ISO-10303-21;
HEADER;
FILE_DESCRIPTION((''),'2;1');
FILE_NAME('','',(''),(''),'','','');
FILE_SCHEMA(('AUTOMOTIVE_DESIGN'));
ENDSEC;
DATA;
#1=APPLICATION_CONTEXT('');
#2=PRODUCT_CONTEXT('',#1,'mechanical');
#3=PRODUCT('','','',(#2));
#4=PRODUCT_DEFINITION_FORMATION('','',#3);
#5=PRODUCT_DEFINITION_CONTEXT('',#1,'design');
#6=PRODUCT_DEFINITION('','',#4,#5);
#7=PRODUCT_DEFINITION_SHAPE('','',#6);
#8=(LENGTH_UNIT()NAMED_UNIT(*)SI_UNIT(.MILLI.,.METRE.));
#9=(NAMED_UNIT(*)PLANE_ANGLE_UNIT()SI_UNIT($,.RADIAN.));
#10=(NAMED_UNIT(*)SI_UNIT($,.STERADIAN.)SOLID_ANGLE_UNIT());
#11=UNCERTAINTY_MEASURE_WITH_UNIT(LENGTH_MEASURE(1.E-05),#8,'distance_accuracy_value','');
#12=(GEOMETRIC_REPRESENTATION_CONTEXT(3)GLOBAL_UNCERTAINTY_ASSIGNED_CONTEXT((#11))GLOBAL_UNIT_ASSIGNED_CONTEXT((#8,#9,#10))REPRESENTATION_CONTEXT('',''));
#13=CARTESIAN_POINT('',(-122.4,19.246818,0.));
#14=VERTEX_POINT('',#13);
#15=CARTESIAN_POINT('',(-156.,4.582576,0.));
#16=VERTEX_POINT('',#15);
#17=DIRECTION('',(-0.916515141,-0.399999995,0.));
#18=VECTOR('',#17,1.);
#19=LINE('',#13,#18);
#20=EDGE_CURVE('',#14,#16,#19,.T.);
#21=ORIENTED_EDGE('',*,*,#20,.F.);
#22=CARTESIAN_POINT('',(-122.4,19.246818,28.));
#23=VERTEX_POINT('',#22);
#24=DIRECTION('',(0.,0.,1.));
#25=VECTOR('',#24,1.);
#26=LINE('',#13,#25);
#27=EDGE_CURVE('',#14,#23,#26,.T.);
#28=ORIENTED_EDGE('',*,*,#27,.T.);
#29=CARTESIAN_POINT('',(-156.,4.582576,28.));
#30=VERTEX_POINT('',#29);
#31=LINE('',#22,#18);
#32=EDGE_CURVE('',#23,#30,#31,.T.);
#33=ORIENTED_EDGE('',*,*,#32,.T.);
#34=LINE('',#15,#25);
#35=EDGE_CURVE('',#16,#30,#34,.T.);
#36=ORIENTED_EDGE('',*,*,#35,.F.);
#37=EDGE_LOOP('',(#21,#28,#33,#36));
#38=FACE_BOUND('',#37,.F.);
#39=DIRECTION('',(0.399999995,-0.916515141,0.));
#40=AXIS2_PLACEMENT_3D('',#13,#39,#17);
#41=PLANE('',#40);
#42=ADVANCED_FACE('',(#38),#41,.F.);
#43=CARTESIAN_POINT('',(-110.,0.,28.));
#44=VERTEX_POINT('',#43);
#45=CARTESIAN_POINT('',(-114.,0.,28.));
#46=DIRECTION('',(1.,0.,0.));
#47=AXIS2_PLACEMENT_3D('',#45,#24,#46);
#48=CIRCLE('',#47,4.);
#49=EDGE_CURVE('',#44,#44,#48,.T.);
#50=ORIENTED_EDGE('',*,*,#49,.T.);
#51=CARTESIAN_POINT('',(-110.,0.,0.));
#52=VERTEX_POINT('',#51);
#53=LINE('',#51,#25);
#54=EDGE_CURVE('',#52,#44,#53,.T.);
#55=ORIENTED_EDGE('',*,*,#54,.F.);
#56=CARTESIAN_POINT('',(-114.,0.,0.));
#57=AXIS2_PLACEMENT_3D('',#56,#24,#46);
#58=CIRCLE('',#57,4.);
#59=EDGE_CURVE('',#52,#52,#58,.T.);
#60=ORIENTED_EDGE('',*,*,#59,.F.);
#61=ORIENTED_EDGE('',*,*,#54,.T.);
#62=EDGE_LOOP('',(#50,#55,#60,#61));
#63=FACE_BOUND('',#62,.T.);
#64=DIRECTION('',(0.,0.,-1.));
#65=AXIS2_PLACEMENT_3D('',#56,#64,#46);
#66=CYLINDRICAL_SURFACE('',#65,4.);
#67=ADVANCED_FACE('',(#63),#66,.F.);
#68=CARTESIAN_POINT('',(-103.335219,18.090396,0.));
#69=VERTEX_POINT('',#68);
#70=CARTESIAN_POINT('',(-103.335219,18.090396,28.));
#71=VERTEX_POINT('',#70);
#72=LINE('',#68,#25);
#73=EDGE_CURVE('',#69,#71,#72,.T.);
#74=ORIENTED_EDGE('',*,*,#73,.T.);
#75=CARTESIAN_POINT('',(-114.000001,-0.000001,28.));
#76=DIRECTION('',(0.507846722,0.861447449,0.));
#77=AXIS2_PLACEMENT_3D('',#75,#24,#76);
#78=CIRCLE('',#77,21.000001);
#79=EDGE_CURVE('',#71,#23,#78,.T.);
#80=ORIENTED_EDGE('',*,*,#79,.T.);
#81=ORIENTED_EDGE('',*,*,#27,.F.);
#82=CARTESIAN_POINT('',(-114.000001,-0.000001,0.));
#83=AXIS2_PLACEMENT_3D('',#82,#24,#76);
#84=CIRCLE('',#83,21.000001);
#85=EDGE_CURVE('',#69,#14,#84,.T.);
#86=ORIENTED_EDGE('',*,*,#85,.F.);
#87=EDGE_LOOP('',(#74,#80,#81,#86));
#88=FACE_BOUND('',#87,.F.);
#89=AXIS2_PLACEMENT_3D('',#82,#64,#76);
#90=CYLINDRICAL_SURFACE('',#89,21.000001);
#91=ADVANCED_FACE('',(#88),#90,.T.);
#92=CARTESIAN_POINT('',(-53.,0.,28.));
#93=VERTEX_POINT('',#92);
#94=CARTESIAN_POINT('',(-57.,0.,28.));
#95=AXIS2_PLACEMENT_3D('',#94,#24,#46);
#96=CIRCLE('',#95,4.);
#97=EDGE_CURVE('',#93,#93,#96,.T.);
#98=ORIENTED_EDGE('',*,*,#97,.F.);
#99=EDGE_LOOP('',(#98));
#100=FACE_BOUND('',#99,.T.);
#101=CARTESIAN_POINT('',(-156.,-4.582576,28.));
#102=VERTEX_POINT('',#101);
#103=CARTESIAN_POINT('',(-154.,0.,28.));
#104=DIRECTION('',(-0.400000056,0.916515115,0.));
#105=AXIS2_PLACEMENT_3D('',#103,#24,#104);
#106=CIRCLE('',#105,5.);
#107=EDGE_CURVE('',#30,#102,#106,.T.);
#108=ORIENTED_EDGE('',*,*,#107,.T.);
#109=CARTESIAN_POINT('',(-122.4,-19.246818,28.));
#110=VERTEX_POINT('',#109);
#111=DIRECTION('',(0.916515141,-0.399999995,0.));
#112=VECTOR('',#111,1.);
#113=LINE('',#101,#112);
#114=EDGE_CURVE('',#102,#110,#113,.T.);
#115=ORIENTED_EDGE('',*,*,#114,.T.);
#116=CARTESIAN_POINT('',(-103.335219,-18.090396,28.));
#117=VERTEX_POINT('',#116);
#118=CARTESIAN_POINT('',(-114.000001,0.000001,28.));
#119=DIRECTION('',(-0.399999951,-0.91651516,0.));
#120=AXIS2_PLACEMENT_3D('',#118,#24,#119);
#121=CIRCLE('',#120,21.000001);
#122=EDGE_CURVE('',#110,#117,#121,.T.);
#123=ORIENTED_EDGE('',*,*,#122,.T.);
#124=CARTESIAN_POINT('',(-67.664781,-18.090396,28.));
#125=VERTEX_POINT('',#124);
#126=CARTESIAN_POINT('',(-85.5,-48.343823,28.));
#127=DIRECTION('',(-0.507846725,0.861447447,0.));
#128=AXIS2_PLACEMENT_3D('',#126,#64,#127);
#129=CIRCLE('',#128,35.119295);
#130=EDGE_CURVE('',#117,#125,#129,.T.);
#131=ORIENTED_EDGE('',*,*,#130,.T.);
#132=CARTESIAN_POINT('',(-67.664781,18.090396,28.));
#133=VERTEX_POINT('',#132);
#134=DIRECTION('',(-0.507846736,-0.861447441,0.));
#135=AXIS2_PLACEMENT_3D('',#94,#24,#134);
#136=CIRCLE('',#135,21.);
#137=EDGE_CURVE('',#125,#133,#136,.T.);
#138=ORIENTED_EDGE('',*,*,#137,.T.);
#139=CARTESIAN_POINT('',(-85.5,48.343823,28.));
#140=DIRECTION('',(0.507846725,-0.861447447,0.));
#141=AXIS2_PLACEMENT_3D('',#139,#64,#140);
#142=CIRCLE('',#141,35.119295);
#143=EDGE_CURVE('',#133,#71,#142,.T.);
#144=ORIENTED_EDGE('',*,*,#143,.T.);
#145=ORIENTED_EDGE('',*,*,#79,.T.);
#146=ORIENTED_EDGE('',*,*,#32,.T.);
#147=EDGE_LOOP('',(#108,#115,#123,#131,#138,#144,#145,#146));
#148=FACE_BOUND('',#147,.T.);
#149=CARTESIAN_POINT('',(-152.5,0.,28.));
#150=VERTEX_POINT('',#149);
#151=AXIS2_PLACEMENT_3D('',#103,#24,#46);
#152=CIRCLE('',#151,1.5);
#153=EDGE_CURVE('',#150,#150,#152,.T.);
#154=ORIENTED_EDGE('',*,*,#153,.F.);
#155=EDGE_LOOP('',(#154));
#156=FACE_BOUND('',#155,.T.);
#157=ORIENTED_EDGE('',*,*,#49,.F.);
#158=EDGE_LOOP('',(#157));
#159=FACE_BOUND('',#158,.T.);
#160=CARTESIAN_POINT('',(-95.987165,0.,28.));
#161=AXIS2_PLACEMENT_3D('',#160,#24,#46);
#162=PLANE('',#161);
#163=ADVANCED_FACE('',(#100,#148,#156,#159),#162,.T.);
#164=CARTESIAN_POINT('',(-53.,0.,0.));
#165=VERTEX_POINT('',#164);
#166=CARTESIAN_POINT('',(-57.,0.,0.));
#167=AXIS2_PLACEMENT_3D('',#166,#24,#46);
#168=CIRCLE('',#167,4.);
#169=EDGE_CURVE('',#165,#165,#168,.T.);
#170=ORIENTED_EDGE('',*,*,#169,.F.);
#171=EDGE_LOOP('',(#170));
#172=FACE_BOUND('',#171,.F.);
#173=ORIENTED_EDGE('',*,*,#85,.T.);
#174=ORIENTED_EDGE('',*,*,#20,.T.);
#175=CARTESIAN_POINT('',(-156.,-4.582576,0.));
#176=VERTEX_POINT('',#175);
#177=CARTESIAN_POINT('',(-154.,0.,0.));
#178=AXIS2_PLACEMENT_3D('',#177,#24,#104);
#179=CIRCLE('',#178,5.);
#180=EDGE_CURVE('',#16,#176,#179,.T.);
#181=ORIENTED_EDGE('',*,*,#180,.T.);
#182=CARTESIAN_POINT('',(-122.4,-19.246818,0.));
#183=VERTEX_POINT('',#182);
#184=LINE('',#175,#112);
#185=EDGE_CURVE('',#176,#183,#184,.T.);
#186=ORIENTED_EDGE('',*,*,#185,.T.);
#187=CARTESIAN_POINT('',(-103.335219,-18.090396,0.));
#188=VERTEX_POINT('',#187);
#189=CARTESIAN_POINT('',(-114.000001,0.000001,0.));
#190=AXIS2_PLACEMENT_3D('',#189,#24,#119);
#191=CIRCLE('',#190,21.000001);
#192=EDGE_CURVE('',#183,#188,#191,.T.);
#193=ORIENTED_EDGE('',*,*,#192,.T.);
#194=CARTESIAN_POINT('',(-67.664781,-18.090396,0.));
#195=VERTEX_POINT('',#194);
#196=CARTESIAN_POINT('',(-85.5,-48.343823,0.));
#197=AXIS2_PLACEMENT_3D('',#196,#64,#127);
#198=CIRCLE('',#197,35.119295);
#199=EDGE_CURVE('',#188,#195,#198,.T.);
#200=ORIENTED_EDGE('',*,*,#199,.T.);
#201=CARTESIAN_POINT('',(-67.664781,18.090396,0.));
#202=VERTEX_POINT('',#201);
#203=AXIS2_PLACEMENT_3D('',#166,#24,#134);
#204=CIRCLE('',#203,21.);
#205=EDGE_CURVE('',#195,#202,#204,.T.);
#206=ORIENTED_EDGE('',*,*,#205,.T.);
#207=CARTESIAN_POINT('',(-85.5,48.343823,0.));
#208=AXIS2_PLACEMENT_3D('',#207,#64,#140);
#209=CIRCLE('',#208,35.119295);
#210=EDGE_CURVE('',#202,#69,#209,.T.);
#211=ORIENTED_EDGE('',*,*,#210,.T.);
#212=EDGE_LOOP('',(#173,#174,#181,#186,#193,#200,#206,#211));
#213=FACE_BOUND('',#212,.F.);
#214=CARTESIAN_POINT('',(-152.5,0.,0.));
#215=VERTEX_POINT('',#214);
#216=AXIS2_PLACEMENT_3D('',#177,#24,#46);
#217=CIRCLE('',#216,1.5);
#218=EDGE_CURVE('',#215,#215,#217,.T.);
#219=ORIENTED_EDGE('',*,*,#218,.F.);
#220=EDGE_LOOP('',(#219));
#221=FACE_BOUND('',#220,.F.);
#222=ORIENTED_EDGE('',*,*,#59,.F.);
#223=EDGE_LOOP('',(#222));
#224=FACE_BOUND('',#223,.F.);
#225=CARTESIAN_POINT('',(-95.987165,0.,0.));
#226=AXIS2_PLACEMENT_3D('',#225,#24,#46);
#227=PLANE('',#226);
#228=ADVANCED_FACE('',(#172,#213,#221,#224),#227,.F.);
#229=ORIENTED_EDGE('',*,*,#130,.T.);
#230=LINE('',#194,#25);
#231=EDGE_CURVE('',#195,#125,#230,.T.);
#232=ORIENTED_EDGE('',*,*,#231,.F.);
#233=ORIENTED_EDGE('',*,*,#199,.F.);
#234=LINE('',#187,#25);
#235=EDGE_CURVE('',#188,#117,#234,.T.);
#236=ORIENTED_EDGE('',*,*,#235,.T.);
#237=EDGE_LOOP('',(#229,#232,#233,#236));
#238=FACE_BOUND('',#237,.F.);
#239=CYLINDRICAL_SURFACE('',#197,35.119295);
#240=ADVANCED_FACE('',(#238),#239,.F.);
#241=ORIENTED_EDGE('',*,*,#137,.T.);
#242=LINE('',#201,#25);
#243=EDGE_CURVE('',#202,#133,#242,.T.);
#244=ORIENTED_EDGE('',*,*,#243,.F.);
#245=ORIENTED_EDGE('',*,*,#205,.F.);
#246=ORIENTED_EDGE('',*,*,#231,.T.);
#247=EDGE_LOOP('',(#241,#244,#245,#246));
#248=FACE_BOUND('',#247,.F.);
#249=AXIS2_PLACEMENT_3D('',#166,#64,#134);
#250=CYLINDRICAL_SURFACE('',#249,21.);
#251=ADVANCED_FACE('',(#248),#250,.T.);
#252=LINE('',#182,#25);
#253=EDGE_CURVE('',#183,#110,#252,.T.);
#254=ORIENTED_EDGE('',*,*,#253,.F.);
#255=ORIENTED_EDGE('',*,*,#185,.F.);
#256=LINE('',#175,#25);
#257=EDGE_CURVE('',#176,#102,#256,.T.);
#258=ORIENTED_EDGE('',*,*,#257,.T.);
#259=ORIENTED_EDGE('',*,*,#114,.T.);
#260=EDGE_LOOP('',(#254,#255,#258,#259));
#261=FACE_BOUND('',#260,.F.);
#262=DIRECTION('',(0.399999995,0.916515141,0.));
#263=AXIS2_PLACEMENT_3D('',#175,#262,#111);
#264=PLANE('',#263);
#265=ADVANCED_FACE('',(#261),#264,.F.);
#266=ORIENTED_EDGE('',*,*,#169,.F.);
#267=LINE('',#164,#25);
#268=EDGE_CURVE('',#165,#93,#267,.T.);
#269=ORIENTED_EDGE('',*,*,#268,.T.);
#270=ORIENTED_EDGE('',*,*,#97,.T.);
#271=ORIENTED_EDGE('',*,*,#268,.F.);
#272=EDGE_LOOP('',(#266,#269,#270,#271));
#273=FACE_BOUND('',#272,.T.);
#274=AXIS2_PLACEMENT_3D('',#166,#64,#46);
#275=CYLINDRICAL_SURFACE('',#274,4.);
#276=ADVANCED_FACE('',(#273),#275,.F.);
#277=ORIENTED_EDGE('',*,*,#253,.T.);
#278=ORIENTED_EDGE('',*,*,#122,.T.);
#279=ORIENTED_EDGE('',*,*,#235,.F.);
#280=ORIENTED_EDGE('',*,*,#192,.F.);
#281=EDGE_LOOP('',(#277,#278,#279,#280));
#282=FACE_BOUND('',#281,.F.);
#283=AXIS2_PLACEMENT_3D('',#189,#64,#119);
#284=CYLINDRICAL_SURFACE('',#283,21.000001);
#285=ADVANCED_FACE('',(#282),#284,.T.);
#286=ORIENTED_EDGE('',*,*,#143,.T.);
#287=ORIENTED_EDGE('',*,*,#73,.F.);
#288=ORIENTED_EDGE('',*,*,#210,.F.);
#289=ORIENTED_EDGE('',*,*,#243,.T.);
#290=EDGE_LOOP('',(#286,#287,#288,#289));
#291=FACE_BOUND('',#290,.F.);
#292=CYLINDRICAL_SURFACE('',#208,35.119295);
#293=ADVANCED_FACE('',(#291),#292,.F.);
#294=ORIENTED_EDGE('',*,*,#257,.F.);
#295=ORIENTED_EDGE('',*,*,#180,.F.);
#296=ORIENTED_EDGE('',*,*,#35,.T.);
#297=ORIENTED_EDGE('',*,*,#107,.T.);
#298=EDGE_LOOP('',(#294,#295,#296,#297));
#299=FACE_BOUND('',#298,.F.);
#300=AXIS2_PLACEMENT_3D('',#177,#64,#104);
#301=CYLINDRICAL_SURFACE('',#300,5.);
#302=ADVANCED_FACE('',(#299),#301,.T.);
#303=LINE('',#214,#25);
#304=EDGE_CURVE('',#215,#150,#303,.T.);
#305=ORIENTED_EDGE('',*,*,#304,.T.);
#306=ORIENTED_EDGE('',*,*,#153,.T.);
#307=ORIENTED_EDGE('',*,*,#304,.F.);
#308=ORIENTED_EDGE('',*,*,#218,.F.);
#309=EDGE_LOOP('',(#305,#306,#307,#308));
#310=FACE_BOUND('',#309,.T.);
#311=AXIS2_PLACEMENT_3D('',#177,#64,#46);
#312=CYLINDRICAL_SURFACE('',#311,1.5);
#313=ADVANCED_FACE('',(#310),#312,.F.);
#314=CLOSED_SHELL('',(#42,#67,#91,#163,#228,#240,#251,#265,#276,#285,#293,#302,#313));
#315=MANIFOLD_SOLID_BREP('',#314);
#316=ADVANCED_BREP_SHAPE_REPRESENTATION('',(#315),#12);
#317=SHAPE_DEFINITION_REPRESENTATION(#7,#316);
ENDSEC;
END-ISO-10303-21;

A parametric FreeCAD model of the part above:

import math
import FreeCAD as App
import Part
import Sketcher
Q = App.Units.Quantity

doc = App.newDocument("Part")
body = doc.addObject("PartDesign::Body", "Body")

sketch1 = body.newObject("Sketcher::SketchObject", "Sketch")
sketch1.AttachmentSupport = (doc.getObject("XY_Plane"), [""])
sketch1.MapMode = "FlatFace"
sketch1.addGeometry(Part.LineSegment(App.Vector(-156, -4.582576, 0), App.Vector(-122.4, -19.246818, 0)), False)
sketch1.addGeometry(Part.ArcOfCircle(Part.Circle(App.Vector(-114.000001, 0.000001, 0), App.Vector(0, 0, 1), 21.000001), math.radians(-113.578175), math.radians(-59.479493)), False)
sketch1.addGeometry(Part.ArcOfCircle(Part.Circle(App.Vector(-85.5, -48.343823, 0), App.Vector(0, 0, 1), 35.119295), math.radians(59.479493), math.radians(120.520507)), False)
sketch1.addGeometry(Part.ArcOfCircle(Part.Circle(App.Vector(-57, 0, 0), App.Vector(0, 0, 1), 21), math.radians(-120.520508), math.radians(120.520508)), False)
sketch1.addGeometry(Part.ArcOfCircle(Part.Circle(App.Vector(-85.5, 48.343823, 0), App.Vector(0, 0, 1), 35.119295), math.radians(-120.520507), math.radians(-59.479493)), False)
sketch1.addGeometry(Part.ArcOfCircle(Part.Circle(App.Vector(-114.000001, -0.000001, 0), App.Vector(0, 0, 1), 21.000001), math.radians(59.479493), math.radians(113.578175)), False)
sketch1.addGeometry(Part.LineSegment(App.Vector(-122.4, 19.246818, 0), App.Vector(-156, 4.582576, 0)), False)
sketch1.addGeometry(Part.ArcOfCircle(Part.Circle(App.Vector(-154, 0, 0), App.Vector(0, 0, 1), 5), math.radians(113.578182), math.radians(246.421818)), False)
sketch1.addGeometry(Part.Circle(App.Vector(-154, 0, 0), App.Vector(0, 0, 1), 1.5), False)
sketch1.addGeometry(Part.Circle(App.Vector(-114, 0, 0), App.Vector(0, 0, 1), 4), False)
sketch1.addGeometry(Part.Circle(App.Vector(-57, 0, 0), App.Vector(0, 0, 1), 4), False)
sketch1.addConstraint(Sketcher.Constraint("Tangent", 0, 2, 1, 1))
sketch1.addConstraint(Sketcher.Constraint("Tangent", 1, 2, 2, 2))
sketch1.addConstraint(Sketcher.Constraint("Tangent", 2, 1, 3, 1))
sketch1.addConstraint(Sketcher.Constraint("Tangent", 3, 2, 4, 2))
sketch1.addConstraint(Sketcher.Constraint("Tangent", 4, 1, 5, 1))
sketch1.addConstraint(Sketcher.Constraint("Tangent", 5, 2, 6, 1))
sketch1.addConstraint(Sketcher.Constraint("Tangent", 6, 2, 7, 1))
sketch1.addConstraint(Sketcher.Constraint("Tangent", 7, 2, 0, 1))
sketch1.addConstraint(Sketcher.Constraint("Coincident", 5, 3, 1, 3))
sketch1.addConstraint(Sketcher.Constraint("Coincident", 8, 3, 7, 3))
sketch1.addConstraint(Sketcher.Constraint("Coincident", 9, 3, 1, 3))
sketch1.addConstraint(Sketcher.Constraint("Coincident", 10, 3, 3, 3))
sketch1.addConstraint(Sketcher.Constraint("Equal", 1, 3))
sketch1.addConstraint(Sketcher.Constraint("Equal", 2, 4))
sketch1.addConstraint(Sketcher.Constraint("Equal", 3, 5))
sketch1.addConstraint(Sketcher.Constraint("Equal", 9, 10))
sketch1.addConstraint(Sketcher.Constraint("Symmetric", 2, 3, 4, 3, -1))
sketch1.addConstraint(Sketcher.Constraint("PointOnObject", 7, 3, -1))
sketch1.addConstraint(Sketcher.Constraint("Diameter", 8, Q("3 mm")))
sketch1.addConstraint(Sketcher.Constraint("Diameter", 9, Q("8 mm")))
sketch1.addConstraint(Sketcher.Constraint("Radius", 1, Q("21.000001 mm")))
sketch1.addConstraint(Sketcher.Constraint("Radius", 7, Q("5 mm")))
sketch1.addConstraint(Sketcher.Constraint("DistanceX", 1, 3, -1, 1, Q("114.000001 mm")))
sketch1.addConstraint(Sketcher.Constraint("DistanceX", 3, 3, -1, 1, Q("57 mm")))
sketch1.addConstraint(Sketcher.Constraint("DistanceX", 7, 3, -1, 1, Q("154 mm")))
sketch1.addConstraint(Sketcher.Constraint("Radius", 2, Q("35.119295 mm")))
pad1 = body.newObject("PartDesign::Pad", "Pad")
pad1.Profile = sketch1
pad1.Length = 28

doc.recompute()
